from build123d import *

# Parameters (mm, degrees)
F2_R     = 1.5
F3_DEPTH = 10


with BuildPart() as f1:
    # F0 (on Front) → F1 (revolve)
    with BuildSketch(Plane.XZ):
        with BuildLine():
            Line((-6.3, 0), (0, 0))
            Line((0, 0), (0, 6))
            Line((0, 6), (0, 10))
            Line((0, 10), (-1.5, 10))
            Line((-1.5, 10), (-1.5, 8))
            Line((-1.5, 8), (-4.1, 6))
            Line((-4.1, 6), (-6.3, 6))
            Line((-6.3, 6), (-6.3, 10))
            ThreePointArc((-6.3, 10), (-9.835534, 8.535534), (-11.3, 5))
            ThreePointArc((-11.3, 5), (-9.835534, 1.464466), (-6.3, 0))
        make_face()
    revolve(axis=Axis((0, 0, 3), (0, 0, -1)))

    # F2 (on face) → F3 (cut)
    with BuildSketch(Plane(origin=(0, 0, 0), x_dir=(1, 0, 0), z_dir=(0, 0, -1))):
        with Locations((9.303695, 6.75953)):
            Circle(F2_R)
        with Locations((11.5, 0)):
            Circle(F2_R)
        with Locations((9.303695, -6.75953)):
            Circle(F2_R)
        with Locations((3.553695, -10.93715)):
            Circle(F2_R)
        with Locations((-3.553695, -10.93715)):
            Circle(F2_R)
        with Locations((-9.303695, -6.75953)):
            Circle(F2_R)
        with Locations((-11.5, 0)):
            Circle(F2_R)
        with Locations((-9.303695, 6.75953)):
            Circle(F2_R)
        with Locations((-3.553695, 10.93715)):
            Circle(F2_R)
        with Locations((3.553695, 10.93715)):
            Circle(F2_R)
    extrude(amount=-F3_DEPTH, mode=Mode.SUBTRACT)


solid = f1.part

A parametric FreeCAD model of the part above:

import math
import FreeCAD as App
import Part
import Sketcher
from FreeCAD import Vector

doc = App.newDocument("Part")
body = doc.addObject("PartDesign::Body", "Body")

# Sketch on XZ plane
sketch1 = body.newObject("Sketcher::SketchObject", "Sketch")
sketch1.AttachmentSupport = (doc.getObject("XZ_Plane"), [""])
sketch1.MapMode = "FlatFace"
sketch1.addGeometry([
    Part.LineSegment(Vector(-6.3, 0, 0), Vector(0, 0, 0)),  # 0
    Part.LineSegment(Vector(0, 0, 0), Vector(0, 10, 0)),  # 1
    Part.LineSegment(Vector(0, 10, 0), Vector(-1.5, 10, 0)),  # 2
    Part.LineSegment(Vector(-1.5, 10, 0), Vector(-1.5, 8, 0)),  # 3
    Part.LineSegment(Vector(-1.5, 8, 0), Vector(-4.1, 6, 0)),  # 4
    Part.LineSegment(Vector(-4.1, 6, 0), Vector(-6.3, 6, 0)),  # 5
    Part.LineSegment(Vector(-6.3, 6, 0), Vector(-6.3, 10, 0)),  # 6
    Part.ArcOfCircle(Part.Circle(Vector(-6.3, 5, 0), Vector(0, 0, 1), 5), math.radians(89.999996), math.radians(180.000004)),  # 7
    Part.ArcOfCircle(Part.Circle(Vector(-6.3, 5, 0), Vector(0, 0, 1), 5), math.radians(179.999996), math.radians(270.000004)),  # 8
], False)
sketch1.addConstraint([
    Sketcher.Constraint("Coincident", 0, 2, 1, 1),
    Sketcher.Constraint("Coincident", 1, 2, 2, 1),
    Sketcher.Constraint("Coincident", 2, 2, 3, 1),
    Sketcher.Constraint("Coincident", 3, 2, 4, 1),
    Sketcher.Constraint("Coincident", 4, 2, 5, 1),
    Sketcher.Constraint("Coincident", 5, 2, 6, 1),
    Sketcher.Constraint("Coincident", 6, 2, 7, 1),
    Sketcher.Constraint("Tangent", 7, 2, 8, 1),
    Sketcher.Constraint("Tangent", 8, 2, 0, 1),
    Sketcher.Constraint("Horizontal", 0),
    Sketcher.Constraint("Vertical", 1),
    Sketcher.Constraint("Horizontal", 2),
    Sketcher.Constraint("Vertical", 3),
    Sketcher.Constraint("Horizontal", 5),
    Sketcher.Constraint("Vertical", 6),
    Sketcher.Constraint("Coincident", 0, 2, -1, 1),
    Sketcher.Constraint("Equal", 7, 8),
    Sketcher.Constraint("Horizontal", 2, 2, 6, 2),
    Sketcher.Constraint("Horizontal", 8, 3, 7, 2),
    Sketcher.Constraint("Vertical", 8, 3, 5, 2),
    Sketcher.Constraint("Radius", 7, 5.0),
    Sketcher.Constraint("DistanceY", 3, 2, 3, 1, 2.0),
    Sketcher.Constraint("DistanceY", 6, 1, 6, 2, 4.0),
    Sketcher.Constraint("DistanceX", 0, 1, 0, 2, 6.3),
    Sketcher.Constraint("DistanceX", 2, 2, 2, 1, 1.5),
    Sketcher.Constraint("DistanceX", 5, 2, 5, 1, 2.2),
])
revolution = body.newObject("PartDesign::Revolution", "Revolution")
revolution.Profile = sketch1
revolution.ReferenceAxis = (sketch1, ["V_Axis"])
revolution.Angle = 360

# Sketch on XY plane
sketch2 = body.newObject("Sketcher::SketchObject", "Sketch001")
sketch2.AttachmentSupport = (doc.getObject("XY_Plane"), [""])
sketch2.MapMode = "FlatFace"
sketch2.addGeometry([
    Part.Circle(Vector(9.303695, -6.75953, 0), Vector(0, 0, 1), 1.5),  # 0
    Part.Circle(Vector(11.5, 0, 0), Vector(0, 0, 1), 1.5),  # 1
    Part.Circle(Vector(9.303695, 6.75953, 0), Vector(0, 0, 1), 1.5),  # 2
    Part.Circle(Vector(3.553695, 10.93715, 0), Vector(0, 0, 1), 1.5),  # 3
    Part.Circle(Vector(-3.553695, 10.93715, 0), Vector(0, 0, 1), 1.5),  # 4
    Part.Circle(Vector(-9.303695, 6.75953, 0), Vector(0, 0, 1), 1.5),  # 5
    Part.Circle(Vector(-11.5, 0, 0), Vector(0, 0, 1), 1.5),  # 6
    Part.Circle(Vector(-9.303695, -6.75953, 0), Vector(0, 0, 1), 1.5),  # 7
    Part.Circle(Vector(-3.553695, -10.93715, 0), Vector(0, 0, 1), 1.5),  # 8
    Part.Circle(Vector(3.553695, -10.93715, 0), Vector(0, 0, 1), 1.5),  # 9
], False)
sketch2.addConstraint([
    Sketcher.Constraint("Equal", 0, 1),
    Sketcher.Constraint("Equal", 1, 2),
    Sketcher.Constraint("Equal", 2, 3),
    Sketcher.Constraint("Equal", 3, 4),
    Sketcher.Constraint("Equal", 4, 5),
    Sketcher.Constraint("Equal", 5, 6),
    Sketcher.Constraint("Equal", 6, 7),
    Sketcher.Constraint("Equal", 7, 8),
    Sketcher.Constraint("Equal", 8, 9),
    Sketcher.Constraint("Symmetric", 0, 3, 5, 3, -1, 1),
    Sketcher.Constraint("Symmetric", 1, 3, 6, 3, -1, 1),
    Sketcher.Constraint("Symmetric", 2, 3, 7, 3, -1, 1),
    Sketcher.Constraint("Symmetric", 3, 3, 8, 3, -1, 1),
    Sketcher.Constraint("Symmetric", 4, 3, 9, 3, -1, 1),
    Sketcher.Constraint("Symmetric", 3, 3, 4, 3, -2),
    Sketcher.Constraint("Symmetric", 2, 3, 5, 3, -2),
    Sketcher.Constraint("PointOnObject", 1, 3, -1),
    Sketcher.Constraint("Diameter", 0, 3.0),
    Sketcher.Constraint("DistanceX", -1, 1, 1, 3, 11.5),
    Sketcher.Constraint("DistanceX", 3, 3, 2, 3, 5.75),
    Sketcher.Constraint("DistanceY", 0, 3, -1, 1, 6.75953),
    Sketcher.Constraint("DistanceY", -1, 1, 3, 3, 10.93715),
    Sketcher.Constraint("DistanceX", 4, 3, 3, 3, 7.10739),
])
pocket1 = body.newObject("PartDesign::Pocket", "Pocket")
pocket1.Profile = sketch2
pocket1.Length = 10
pocket1.Reversed = True

doc.recompute()
